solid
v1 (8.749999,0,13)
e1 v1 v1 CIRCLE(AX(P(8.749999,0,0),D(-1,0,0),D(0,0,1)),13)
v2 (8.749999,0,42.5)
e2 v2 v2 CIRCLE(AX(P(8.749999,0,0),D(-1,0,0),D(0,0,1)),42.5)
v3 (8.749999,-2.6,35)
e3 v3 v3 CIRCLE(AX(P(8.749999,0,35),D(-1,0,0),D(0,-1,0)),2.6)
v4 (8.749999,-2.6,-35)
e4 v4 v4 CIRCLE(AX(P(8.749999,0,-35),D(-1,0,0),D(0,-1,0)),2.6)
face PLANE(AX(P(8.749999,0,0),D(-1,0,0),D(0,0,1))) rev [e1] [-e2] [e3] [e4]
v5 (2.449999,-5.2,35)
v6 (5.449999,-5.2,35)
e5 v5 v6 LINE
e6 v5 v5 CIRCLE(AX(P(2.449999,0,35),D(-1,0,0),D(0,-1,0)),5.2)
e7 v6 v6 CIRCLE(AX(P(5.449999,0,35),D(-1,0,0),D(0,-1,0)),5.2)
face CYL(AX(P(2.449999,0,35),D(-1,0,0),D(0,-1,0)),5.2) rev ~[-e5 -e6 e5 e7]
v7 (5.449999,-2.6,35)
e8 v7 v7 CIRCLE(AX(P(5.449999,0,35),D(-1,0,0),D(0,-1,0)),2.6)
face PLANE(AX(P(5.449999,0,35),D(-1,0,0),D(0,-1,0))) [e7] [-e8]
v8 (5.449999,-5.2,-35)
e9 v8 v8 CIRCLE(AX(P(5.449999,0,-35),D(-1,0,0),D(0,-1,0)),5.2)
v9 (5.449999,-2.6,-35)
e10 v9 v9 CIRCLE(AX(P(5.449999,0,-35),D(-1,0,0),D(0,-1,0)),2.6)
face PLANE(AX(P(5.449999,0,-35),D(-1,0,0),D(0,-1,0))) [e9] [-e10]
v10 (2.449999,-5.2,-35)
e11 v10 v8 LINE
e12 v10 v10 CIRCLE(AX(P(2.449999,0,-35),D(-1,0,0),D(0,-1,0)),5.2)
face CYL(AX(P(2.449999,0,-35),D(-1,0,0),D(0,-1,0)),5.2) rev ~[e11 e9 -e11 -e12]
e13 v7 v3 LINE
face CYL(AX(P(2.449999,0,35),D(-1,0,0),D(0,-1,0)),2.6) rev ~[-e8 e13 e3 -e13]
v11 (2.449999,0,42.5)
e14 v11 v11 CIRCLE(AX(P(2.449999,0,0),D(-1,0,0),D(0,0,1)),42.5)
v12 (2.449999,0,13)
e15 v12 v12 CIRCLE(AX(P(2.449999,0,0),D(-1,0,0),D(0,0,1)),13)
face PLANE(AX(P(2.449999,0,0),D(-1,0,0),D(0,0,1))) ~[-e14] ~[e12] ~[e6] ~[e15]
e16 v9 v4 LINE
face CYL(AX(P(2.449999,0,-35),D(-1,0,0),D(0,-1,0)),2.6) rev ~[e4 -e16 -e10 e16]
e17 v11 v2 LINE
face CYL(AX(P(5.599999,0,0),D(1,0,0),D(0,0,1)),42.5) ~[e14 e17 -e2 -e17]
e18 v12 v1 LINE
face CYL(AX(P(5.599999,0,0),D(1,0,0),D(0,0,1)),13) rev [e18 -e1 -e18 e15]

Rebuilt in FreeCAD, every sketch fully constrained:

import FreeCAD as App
import Part
import Sketcher

V = App.Vector
Q = App.Units.Quantity

doc = App.newDocument("Part")
body = doc.addObject("PartDesign::Body", "Body")

sketch1 = body.newObject("Sketcher::SketchObject", "Sketch")
sketch1.AttachmentSupport = (doc.getObject("XZ_Plane"), [""])
sketch1.MapMode = "FlatFace"
sketch1.addGeometry(Part.LineSegment(V(2, 42, 0), V(2, 13, 0)), False)
sketch1.addGeometry(Part.LineSegment(V(2, 13, 0), V(9, 13, 0)), False)
sketch1.addGeometry(Part.LineSegment(V(9, 13, 0), V(9, 42, 0)), False)
sketch1.addGeometry(Part.LineSegment(V(9, 42, 0), V(2, 42, 0)), False)
sketch1.addConstraint(Sketcher.Constraint("Coincident", 0, 2, 1, 1))
sketch1.addConstraint(Sketcher.Constraint("Coincident", 1, 2, 2, 1))
sketch1.addConstraint(Sketcher.Constraint("Coincident", 2, 2, 3, 1))
sketch1.addConstraint(Sketcher.Constraint("Coincident", 3, 2, 0, 1))
sketch1.addConstraint(Sketcher.Constraint("Vertical", 0))
sketch1.addConstraint(Sketcher.Constraint("Horizontal", 1))
sketch1.addConstraint(Sketcher.Constraint("Vertical", 2))
sketch1.addConstraint(Sketcher.Constraint("Horizontal", 3))
sketch1.addConstraint(Sketcher.Constraint("DistanceX", 1, 1, 1, 2, Q("6.3 mm")))
sketch1.addConstraint(Sketcher.Constraint("DistanceY", 0, 2, 0, 1, Q("29.5 mm")))
sketch1.addConstraint(Sketcher.Constraint("DistanceY", -1, 1, 0, 2, Q("13 mm")))
sketch1.addConstraint(Sketcher.Constraint("DistanceX", -1, 1, 0, 2, Q("2.449999 mm")))
revolution = body.newObject("PartDesign::Revolution", "Revolution")
revolution.Profile = sketch1
revolution.ReferenceAxis = (sketch1, ["H_Axis"])
revolution.Angle = 360

sketch2 = body.newObject("Sketcher::SketchObject", "Sketch001")
sketch2.AttachmentSupport = (doc.getObject("YZ_Plane"), [""])
sketch2.MapMode = "FlatFace"
sketch2.AttachmentOffset = App.Placement(V(0, 0, 2.449999), App.Rotation())
sketch2.addGeometry(Part.Circle(V(0, 35, 0), V(0, 0, 1), 2.6), False)
sketch2.addGeometry(Part.Circle(V(0, -35, 0), V(0, 0, 1), 2.6), False)
sketch2.addConstraint(Sketcher.Constraint("Equal", 0, 1))
sketch2.addConstraint(Sketcher.Constraint("Symmetric", 0, 3, 1, 3, -1, 1))
sketch2.addConstraint(Sketcher.Constraint("PointOnObject", 0, 3, -2))
sketch2.addConstraint(Sketcher.Constraint("Diameter", 0, Q("5.2 mm")))
sketch2.addConstraint(Sketcher.Constraint("DistanceY", -1, 1, 0, 3, Q("35 mm")))
pocket1 = body.newObject("PartDesign::Pocket", "Pocket")
pocket1.Profile = sketch2
pocket1.Length = 25
pocket1.Reversed = True

sketch3 = body.newObject("Sketcher::SketchObject", "Sketch002")
sketch3.AttachmentSupport = (doc.getObject("YZ_Plane"), [""])
sketch3.MapMode = "FlatFace"
sketch3.AttachmentOffset = App.Placement(V(0, 0, 2.449999), App.Rotation())
sketch3.addGeometry(Part.Circle(V(0, 35, 0), V(0, 0, 1), 5.2), False)
sketch3.addGeometry(Part.Circle(V(0, 35, 0), V(0, 0, 1), 2.6), False)
sketch3.addGeometry(Part.Circle(V(0, -35, 0), V(0, 0, 1), 5.2), False)
sketch3.addGeometry(Part.Circle(V(0, -35, 0), V(0, 0, 1), 2.6), False)
sketch3.addConstraint(Sketcher.Constraint("Coincident", 1, 3, 0, 3))
sketch3.addConstraint(Sketcher.Constraint("Coincident", 3, 3, 2, 3))
sketch3.addConstraint(Sketcher.Constraint("Equal", 0, 2))
sketch3.addConstraint(Sketcher.Constraint("Equal", 1, 3))
sketch3.addConstraint(Sketcher.Constraint("Symmetric", 0, 3, 2, 3, -1, 1))
sketch3.addConstraint(Sketcher.Constraint("PointOnObject", 0, 3, -2))
sketch3.addConstraint(Sketcher.Constraint("Diameter", 0, Q("10.4 mm")))
sketch3.addConstraint(Sketcher.Constraint("Diameter", 1, Q("5.2 mm")))
sketch3.addConstraint(Sketcher.Constraint("DistanceY", -1, 1, 0, 3, Q("35 mm")))
pocket2 = body.newObject("PartDesign::Pocket", "Pocket001")
pocket2.Profile = sketch3
pocket2.Length = 3
pocket2.Reversed = True

doc.recompute()
